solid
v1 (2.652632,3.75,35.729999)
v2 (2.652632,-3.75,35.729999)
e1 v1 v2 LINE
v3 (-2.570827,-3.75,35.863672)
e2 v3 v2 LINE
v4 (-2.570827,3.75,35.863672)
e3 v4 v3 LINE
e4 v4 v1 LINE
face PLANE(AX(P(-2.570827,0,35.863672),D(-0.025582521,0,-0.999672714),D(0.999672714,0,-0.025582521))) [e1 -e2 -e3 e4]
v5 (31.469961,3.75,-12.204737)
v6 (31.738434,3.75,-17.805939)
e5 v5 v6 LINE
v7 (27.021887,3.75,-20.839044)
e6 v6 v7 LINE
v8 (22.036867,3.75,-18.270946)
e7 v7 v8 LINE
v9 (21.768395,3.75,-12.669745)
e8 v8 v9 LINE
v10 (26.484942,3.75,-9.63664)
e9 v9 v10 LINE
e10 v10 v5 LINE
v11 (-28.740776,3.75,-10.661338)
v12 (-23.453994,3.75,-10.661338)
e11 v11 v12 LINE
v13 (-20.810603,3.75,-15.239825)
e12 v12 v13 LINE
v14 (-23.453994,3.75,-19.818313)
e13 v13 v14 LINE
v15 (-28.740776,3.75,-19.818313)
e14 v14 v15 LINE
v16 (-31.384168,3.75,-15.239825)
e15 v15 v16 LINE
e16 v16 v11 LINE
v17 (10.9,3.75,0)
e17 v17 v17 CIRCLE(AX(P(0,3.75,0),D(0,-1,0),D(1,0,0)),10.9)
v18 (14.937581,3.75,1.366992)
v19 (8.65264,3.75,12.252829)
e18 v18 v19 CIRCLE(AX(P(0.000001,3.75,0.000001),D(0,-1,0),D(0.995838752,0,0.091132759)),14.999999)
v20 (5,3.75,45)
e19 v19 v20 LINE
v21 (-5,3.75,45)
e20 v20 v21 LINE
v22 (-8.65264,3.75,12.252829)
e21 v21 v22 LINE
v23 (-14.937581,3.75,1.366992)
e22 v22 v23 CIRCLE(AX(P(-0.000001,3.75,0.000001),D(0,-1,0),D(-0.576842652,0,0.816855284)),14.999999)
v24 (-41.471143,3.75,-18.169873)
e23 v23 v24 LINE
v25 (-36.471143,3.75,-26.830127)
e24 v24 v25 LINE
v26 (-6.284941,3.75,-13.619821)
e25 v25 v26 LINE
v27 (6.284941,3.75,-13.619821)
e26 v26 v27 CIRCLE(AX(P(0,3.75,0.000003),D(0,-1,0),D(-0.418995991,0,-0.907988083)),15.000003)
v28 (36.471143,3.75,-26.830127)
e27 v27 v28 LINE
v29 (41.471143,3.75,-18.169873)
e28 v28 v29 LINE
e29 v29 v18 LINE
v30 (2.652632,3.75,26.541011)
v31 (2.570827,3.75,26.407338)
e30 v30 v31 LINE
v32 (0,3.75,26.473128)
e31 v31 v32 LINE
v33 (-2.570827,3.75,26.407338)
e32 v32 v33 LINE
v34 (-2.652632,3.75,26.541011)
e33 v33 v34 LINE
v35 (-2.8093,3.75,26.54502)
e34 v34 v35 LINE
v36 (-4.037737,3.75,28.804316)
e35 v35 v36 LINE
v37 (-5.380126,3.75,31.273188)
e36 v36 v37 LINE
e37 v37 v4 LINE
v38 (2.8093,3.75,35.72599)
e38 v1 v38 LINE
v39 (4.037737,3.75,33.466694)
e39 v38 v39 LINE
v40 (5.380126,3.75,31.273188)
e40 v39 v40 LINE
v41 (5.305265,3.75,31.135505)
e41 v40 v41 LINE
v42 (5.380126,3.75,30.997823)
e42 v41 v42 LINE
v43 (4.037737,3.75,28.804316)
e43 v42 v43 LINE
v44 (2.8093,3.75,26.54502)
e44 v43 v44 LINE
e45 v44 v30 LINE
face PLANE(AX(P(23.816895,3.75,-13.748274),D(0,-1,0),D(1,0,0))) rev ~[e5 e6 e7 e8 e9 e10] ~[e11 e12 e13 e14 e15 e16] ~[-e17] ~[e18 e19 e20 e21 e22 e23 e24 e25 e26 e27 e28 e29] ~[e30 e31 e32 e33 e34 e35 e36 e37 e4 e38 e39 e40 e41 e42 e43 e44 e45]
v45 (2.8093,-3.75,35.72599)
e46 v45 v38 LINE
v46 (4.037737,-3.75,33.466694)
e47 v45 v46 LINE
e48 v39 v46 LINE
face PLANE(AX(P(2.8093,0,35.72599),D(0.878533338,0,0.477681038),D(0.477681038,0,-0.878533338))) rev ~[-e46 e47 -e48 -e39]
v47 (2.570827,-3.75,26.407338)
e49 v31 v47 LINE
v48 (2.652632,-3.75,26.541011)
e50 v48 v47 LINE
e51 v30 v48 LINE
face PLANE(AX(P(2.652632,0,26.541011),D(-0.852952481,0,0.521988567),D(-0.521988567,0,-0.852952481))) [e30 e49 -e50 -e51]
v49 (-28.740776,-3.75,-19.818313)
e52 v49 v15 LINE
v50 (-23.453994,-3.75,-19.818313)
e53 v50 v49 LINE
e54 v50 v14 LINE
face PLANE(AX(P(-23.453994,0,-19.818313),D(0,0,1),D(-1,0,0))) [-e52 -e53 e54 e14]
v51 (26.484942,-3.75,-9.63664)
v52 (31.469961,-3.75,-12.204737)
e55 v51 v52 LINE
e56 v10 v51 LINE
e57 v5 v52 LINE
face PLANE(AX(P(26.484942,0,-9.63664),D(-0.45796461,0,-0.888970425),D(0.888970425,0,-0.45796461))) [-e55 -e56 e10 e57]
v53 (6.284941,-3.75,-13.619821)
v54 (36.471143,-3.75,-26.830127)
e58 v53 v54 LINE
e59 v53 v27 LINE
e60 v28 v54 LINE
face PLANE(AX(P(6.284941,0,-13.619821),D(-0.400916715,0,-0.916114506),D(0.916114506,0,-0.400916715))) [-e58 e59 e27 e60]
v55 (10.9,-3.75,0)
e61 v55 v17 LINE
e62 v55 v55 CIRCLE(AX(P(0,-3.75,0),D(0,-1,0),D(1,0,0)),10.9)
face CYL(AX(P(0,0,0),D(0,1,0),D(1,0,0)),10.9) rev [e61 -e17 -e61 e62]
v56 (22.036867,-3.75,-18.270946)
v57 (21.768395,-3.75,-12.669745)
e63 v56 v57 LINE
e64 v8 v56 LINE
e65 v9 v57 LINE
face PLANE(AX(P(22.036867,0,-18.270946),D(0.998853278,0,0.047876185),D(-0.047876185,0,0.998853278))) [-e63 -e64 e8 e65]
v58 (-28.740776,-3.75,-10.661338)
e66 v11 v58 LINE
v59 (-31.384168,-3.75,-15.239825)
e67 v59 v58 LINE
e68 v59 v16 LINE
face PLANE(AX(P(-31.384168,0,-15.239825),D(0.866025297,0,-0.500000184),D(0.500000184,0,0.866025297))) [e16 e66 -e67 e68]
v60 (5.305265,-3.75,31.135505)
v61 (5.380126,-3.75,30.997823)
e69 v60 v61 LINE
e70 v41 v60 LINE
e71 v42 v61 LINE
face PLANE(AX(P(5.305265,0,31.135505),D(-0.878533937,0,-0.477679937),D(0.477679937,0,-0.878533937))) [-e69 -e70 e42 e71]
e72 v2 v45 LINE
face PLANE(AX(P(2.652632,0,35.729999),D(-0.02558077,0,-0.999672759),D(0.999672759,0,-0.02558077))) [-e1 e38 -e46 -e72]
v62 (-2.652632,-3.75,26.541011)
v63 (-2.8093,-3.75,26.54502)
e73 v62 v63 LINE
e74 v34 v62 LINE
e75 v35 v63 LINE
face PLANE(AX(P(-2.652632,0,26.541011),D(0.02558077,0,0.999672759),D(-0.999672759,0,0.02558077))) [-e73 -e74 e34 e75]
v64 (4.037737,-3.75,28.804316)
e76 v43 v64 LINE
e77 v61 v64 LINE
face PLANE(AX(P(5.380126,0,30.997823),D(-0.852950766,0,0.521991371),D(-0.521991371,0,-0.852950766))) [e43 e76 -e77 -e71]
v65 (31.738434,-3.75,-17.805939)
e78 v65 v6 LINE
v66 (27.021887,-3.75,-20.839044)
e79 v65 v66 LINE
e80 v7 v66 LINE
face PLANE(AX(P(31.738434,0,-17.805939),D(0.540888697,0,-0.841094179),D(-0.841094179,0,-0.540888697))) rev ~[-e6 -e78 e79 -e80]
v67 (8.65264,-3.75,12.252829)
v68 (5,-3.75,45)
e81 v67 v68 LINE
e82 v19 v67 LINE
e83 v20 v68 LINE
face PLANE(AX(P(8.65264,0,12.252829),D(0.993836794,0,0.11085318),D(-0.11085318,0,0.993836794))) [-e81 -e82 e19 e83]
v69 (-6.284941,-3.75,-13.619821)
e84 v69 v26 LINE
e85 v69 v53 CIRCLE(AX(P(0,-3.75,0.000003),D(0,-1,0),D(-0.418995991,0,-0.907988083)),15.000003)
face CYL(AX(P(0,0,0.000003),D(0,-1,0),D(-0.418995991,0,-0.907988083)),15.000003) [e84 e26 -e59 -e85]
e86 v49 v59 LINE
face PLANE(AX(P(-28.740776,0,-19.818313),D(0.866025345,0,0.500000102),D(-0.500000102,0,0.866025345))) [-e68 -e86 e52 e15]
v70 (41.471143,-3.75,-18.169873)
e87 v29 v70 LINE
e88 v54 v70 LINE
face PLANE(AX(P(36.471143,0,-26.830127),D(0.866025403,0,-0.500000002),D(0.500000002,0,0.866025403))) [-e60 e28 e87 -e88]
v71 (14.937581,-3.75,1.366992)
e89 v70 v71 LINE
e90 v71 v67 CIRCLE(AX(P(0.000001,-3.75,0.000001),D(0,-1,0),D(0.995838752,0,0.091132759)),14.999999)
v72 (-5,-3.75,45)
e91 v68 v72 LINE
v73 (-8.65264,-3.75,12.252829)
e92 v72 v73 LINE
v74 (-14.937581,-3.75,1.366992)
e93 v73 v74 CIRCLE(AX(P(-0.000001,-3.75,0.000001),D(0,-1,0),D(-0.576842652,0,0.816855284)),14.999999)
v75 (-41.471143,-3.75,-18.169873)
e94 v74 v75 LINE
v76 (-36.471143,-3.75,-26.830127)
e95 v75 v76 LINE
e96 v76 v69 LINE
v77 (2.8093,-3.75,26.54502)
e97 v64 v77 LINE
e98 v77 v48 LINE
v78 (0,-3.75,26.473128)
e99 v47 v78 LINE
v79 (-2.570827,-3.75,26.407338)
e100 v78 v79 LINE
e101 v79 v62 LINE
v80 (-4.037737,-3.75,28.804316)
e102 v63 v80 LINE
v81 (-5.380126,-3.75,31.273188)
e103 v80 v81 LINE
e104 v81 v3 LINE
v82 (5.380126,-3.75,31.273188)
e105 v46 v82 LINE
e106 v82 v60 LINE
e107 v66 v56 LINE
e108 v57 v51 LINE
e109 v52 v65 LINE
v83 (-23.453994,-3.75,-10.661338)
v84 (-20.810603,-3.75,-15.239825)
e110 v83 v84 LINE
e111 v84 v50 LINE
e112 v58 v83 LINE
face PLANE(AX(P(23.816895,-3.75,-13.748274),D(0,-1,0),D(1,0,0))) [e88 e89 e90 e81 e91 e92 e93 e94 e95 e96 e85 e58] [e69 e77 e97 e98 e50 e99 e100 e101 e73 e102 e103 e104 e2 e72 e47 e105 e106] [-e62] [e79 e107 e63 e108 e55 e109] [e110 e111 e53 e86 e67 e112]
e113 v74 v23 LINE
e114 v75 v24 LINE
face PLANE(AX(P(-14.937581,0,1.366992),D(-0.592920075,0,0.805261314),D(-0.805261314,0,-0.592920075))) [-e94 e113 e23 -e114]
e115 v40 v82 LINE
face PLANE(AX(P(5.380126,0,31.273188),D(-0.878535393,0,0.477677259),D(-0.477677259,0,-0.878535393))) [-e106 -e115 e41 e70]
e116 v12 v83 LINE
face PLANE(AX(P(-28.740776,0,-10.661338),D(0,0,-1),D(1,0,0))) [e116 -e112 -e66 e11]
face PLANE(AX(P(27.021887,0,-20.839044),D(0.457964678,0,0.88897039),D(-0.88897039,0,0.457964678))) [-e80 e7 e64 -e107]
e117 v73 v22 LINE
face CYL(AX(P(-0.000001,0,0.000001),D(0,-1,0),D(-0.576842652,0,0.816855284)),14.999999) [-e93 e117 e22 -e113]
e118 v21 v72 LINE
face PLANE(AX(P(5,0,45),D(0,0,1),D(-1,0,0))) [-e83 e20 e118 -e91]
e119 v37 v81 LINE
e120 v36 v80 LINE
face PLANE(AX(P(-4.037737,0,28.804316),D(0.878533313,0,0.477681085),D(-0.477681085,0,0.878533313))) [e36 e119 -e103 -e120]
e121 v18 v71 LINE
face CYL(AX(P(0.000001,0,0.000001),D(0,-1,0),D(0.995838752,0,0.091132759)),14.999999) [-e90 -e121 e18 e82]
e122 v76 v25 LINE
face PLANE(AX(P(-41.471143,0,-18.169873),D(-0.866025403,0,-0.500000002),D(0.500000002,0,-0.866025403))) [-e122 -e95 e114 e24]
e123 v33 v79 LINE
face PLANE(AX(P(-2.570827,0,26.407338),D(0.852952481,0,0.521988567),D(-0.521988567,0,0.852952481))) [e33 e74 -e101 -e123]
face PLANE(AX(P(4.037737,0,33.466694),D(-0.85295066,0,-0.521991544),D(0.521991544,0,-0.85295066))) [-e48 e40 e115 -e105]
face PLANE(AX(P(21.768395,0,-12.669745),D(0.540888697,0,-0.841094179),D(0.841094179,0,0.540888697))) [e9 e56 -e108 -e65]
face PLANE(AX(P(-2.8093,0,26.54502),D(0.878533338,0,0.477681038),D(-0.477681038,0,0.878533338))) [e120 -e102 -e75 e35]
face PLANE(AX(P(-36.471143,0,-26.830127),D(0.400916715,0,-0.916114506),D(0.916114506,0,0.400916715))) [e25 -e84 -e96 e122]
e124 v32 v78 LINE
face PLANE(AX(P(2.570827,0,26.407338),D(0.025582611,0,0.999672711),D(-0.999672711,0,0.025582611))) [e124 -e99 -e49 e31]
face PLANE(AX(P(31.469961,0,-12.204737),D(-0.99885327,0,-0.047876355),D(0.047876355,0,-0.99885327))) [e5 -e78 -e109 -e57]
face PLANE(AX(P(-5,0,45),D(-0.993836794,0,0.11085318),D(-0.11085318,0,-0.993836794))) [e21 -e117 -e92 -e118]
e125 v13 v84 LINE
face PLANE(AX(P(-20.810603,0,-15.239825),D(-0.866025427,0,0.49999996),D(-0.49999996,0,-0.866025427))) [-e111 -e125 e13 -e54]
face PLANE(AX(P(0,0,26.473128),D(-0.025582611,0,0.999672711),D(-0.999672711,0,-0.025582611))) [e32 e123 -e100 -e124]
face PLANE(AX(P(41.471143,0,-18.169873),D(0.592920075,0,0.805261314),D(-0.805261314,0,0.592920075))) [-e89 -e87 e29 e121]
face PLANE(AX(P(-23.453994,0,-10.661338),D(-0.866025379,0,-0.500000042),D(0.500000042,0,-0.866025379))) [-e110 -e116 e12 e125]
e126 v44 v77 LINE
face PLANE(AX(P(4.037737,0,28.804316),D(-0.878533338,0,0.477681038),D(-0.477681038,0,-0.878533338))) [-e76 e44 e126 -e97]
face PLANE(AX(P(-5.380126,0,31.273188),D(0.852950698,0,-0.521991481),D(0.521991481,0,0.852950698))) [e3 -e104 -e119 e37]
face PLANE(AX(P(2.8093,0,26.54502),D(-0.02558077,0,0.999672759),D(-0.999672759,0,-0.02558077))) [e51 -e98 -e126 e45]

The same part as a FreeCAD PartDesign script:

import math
import FreeCAD as App
import Part
import Sketcher

V = App.Vector
Q = App.Units.Quantity


def add_polygon(sketch, points):
    """Adds a closed chain of lines whose ends are joined by coincident constraints."""
    first, n = sketch.GeometryCount, len(points)
    for a, b in zip(points, points[1:] + points[:1]):
        sketch.addGeometry(Part.LineSegment(App.Vector(*a, 0), App.Vector(*b, 0)), False)
    for i in range(n):
        sketch.addConstraint(Sketcher.Constraint("Coincident", first + i, 2, first + (i + 1) % n, 1))

doc = App.newDocument("Part")
body = doc.addObject("PartDesign::Body", "Body")

# Sketch on XZ plane
sketch1 = doc.addObject("Sketcher::SketchObject", "Sketch")
body.addObject(sketch1)
sketch1.AttachmentSupport = (doc.XZ_Plane, [""])
sketch1.MapMode = "FlatFace"
sketch1.addGeometry(Part.LineSegment(V(6.28, -13.62, 0), V(36.47, -26.83, 0)), False)  # 0
sketch1.addGeometry(Part.LineSegment(V(36.47, -26.83, 0), V(41.47, -18.17, 0)), False)  # 1
sketch1.addGeometry(Part.LineSegment(V(41.47, -18.17, 0), V(14.94, 1.37, 0)), False)  # 2
sketch1.addGeometry(Part.ArcOfCircle(Part.Circle(V(0, 0, 0), V(0, 0, 1), 15), math.radians(5), math.radians(55)), False)  # 3
sketch1.addGeometry(Part.LineSegment(V(8.65, 12.25, 0), V(5, 45, 0)), False)  # 4
sketch1.addGeometry(Part.LineSegment(V(5, 45, 0), V(-5, 45, 0)), False)  # 5
sketch1.addGeometry(Part.LineSegment(V(-5, 45, 0), V(-8.65, 12.25, 0)), False)  # 6
sketch1.addGeometry(Part.ArcOfCircle(Part.Circle(V(0, 0, 0), V(0, 0, 1), 15), math.radians(125), math.radians(175)), False)  # 7
sketch1.addGeometry(Part.LineSegment(V(-14.94, 1.37, 0), V(-41.47, -18.17, 0)), False)  # 8
sketch1.addGeometry(Part.LineSegment(V(-41.47, -18.17, 0), V(-36.47, -26.83, 0)), False)  # 9
sketch1.addGeometry(Part.LineSegment(V(-36.47, -26.83, 0), V(-6.28, -13.62, 0)), False)  # 10
sketch1.addGeometry(Part.ArcOfCircle(Part.Circle(V(0, 0, 0), V(0, 0, 1), 15), math.radians(-115), math.radians(-65)), False)  # 11
add_polygon(sketch1, [(-31.38, -15.24), (-28.74, -10.66), (-23.45, -10.66), (-20.81, -15.24), (-23.45, -19.82), (-28.74, -19.82)])  # lines 12-17
sketch1.addGeometry(Part.Circle(V(0, 0, 0), V(0, 0, 1), 10.9), False)  # 18
add_polygon(sketch1, [(31.47, -12.2), (31.74, -17.81), (27.02, -20.84), (22.04, -18.27), (21.77, -12.67), (26.48, -9.64)])  # lines 19-24
add_polygon(sketch1, [(0, 26.47), (-2.57, 26.41), (-2.65, 26.54), (-2.81, 26.55), (-4.04, 28.8), (-5.38, 31.27), (-2.57, 35.86), (2.65, 35.73), (2.81, 35.73), (4.04, 33.47), (5.38, 31.27), (5.31, 31.14), (5.38, 31), (4.04, 28.8), (2.81, 26.55), (2.65, 26.54), (2.57, 26.41)])  # lines 25-41
sketch1.addConstraint(Sketcher.Constraint("Coincident", 0, 2, 1, 1))
sketch1.addConstraint(Sketcher.Constraint("Coincident", 1, 2, 2, 1))
sketch1.addConstraint(Sketcher.Constraint("Coincident", 2, 2, 3, 1))
sketch1.addConstraint(Sketcher.Constraint("Coincident", 3, 2, 4, 1))
sketch1.addConstraint(Sketcher.Constraint("Coincident", 4, 2, 5, 1))
sketch1.addConstraint(Sketcher.Constraint("Coincident", 5, 2, 6, 1))
sketch1.addConstraint(Sketcher.Constraint("Coincident", 6, 2, 7, 1))
sketch1.addConstraint(Sketcher.Constraint("Coincident", 7, 2, 8, 1))
sketch1.addConstraint(Sketcher.Constraint("Coincident", 8, 2, 9, 1))
sketch1.addConstraint(Sketcher.Constraint("Coincident", 9, 2, 10, 1))
sketch1.addConstraint(Sketcher.Constraint("Coincident", 10, 2, 11, 1))
sketch1.addConstraint(Sketcher.Constraint("Coincident", 11, 2, 0, 1))
sketch1.addConstraint(Sketcher.Constraint("Horizontal", 5))
sketch1.addConstraint(Sketcher.Constraint("Horizontal", 13))
sketch1.addConstraint(Sketcher.Constraint("Horizontal", 16))
sketch1.addConstraint(Sketcher.Constraint("Coincident", 3, 3, -1, 1))
sketch1.addConstraint(Sketcher.Constraint("Coincident", 7, 3, -1, 1))
sketch1.addConstraint(Sketcher.Constraint("Coincident", 11, 3, -1, 1))
sketch1.addConstraint(Sketcher.Constraint("Coincident", 18, 3, -1, 1))
sketch1.addConstraint(Sketcher.Constraint("Equal", 3, 7))
sketch1.addConstraint(Sketcher.Constraint("Symmetric", 1, 2, 8, 2, -2))
sketch1.addConstraint(Sketcher.Constraint("Symmetric", 0, 2, 9, 2, -2))
sketch1.addConstraint(Sketcher.Constraint("Symmetric", 29, 2, 34, 2, -2))
sketch1.addConstraint(Sketcher.Constraint("Symmetric", 28, 2, 37, 2, -2))
sketch1.addConstraint(Sketcher.Constraint("Symmetric", 27, 2, 38, 2, -2))
sketch1.addConstraint(Sketcher.Constraint("Symmetric", 26, 2, 39, 2, -2))
sketch1.addConstraint(Sketcher.Constraint("Symmetric", 25, 2, 40, 2, -2))
sketch1.addConstraint(Sketcher.Constraint("PointOnObject", 41, 2, -2))
sketch1.addConstraint(Sketcher.Constraint("Parallel", 1, 12))
sketch1.addConstraint(Sketcher.Constraint("Parallel", 9, 14))
sketch1.addConstraint(Sketcher.Constraint("Parallel", 12, 15))
sketch1.addConstraint(Sketcher.Constraint("Parallel", 14, 17))
sketch1.addConstraint(Sketcher.Constraint("Parallel", 19, 22))
sketch1.addConstraint(Sketcher.Constraint("Parallel", 20, 23))
sketch1.addConstraint(Sketcher.Constraint("Parallel", 21, 24))
sketch1.addConstraint(Sketcher.Constraint("Parallel", 28, 29))
sketch1.addConstraint(Sketcher.Constraint("Parallel", 27, 31))
sketch1.addConstraint(Sketcher.Constraint("Parallel", 31, 32))
sketch1.addConstraint(Sketcher.Constraint("Parallel", 29, 33))
sketch1.addConstraint(Sketcher.Constraint("Parallel", 33, 36))
sketch1.addConstraint(Sketcher.Constraint("Parallel", 30, 37))
sketch1.addConstraint(Sketcher.Constraint("Parallel", 25, 39))
sketch1.addConstraint(Sketcher.Constraint("Horizontal", 3, 2, 6, 2))
sketch1.addConstraint(Sketcher.Constraint("Horizontal", 2, 2, 7, 2))
sketch1.addConstraint(Sketcher.Constraint("Horizontal", 10, 2, 11, 2))
sketch1.addConstraint(Sketcher.Constraint("Horizontal", 14, 2, 17, 2))
sketch1.addConstraint(Sketcher.Constraint("Vertical", 13, 2, 15, 2))
sketch1.addConstraint(Sketcher.Constraint("Vertical", 25, 2, 30, 2))
sketch1.addConstraint(Sketcher.Constraint("Vertical", 34, 2, 36, 2))
sketch1.addConstraint(Sketcher.Constraint("Vertical", 33, 2, 37, 2))
sketch1.addConstraint(Sketcher.Constraint("Vertical", 32, 2, 38, 2))
sketch1.addConstraint(Sketcher.Constraint("Vertical", 31, 2, 39, 2))
sketch1.addConstraint(Sketcher.Constraint("Equal", 0, 2))
sketch1.addConstraint(Sketcher.Constraint("Equal", 2, 4))
sketch1.addConstraint(Sketcher.Constraint("Equal", 4, 6))
sketch1.addConstraint(Sketcher.Constraint("Equal", 19, 20))
sketch1.addConstraint(Sketcher.Constraint("Equal", 20, 21))
sketch1.addConstraint(Sketcher.Constraint("Equal", 21, 22))
sketch1.addConstraint(Sketcher.Constraint("Equal", 26, 27))
sketch1.addConstraint(Sketcher.Constraint("Equal", 25, 28))
sketch1.addConstraint(Sketcher.Constraint("Equal", 33, 34))
sketch1.addConstraint(Sketcher.Constraint("Equal", 32, 35))
sketch1.addConstraint(Sketcher.Constraint("Equal", 35, 36))
sketch1.addConstraint(Sketcher.Constraint("Equal", 34, 37))
sketch1.addConstraint(Sketcher.Constraint("Radius", 3, Q("14.999999 mm")))
sketch1.addConstraint(Sketcher.Constraint("Diameter", 18, Q("21.8 mm")))
sketch1.addConstraint(Sketcher.Constraint("DistanceX", 5, 2, 5, 1, Q("10 mm")))
sketch1.addConstraint(Sketcher.Constraint("Angle", 1, Q("60 deg")))
sketch1.addConstraint(Sketcher.Constraint("Distance", 1, Q("10 mm")))
sketch1.addConstraint(Sketcher.Constraint("DistanceY", -1, 1, 4, 2, Q("45 mm")))
sketch1.addConstraint(Sketcher.Constraint("DistanceY", -1, 1, 31, 2, Q("35.729999 mm")))
sketch1.addConstraint(Sketcher.Constraint("Radius", 11, Q("15.000003 mm")))
sketch1.addConstraint(Sketcher.Constraint("DistanceX", 13, 1, 13, 2, Q("5.286782 mm")))
sketch1.addConstraint(Sketcher.Constraint("DistanceX", 27, 2, -1, 1, Q("2.8093 mm")))
sketch1.addConstraint(Sketcher.Constraint("DistanceY", 20, 2, 21, 2, Q("2.568098 mm")))
sketch1.addConstraint(Sketcher.Constraint("DistanceY", 21, 2, 22, 2, Q("5.601201 mm")))
sketch1.addConstraint(Sketcher.Constraint("DistanceX", 29, 2, 25, 2, Q("2.809299 mm")))
sketch1.addConstraint(Sketcher.Constraint("Distance", 0, Q("32.95025 mm")))
sketch1.addConstraint(Sketcher.Constraint("Distance", 14, Q("5.286782 mm")))
sketch1.addConstraint(Sketcher.Constraint("Distance", 22, Q("5.607631 mm")))
sketch1.addConstraint(Sketcher.Constraint("Distance", 25, Q("2.571669 mm")))
sketch1.addConstraint(Sketcher.Constraint("Distance", 27, Q("0.156719 mm")))
sketch1.addConstraint(Sketcher.Constraint("DistanceX", -1, 1, 2, 2, Q("14.937581 mm")))
sketch1.addConstraint(Sketcher.Constraint("DistanceX", 10, 2, -1, 1, Q("6.284941 mm")))
sketch1.addConstraint(Sketcher.Constraint("DistanceY", 12, 2, -1, 1, Q("10.661338 mm")))
sketch1.addConstraint(Sketcher.Constraint("DistanceY", 19, 2, -1, 1, Q("17.805939 mm")))
sketch1.addConstraint(Sketcher.Constraint("DistanceX", -1, 1, 23, 2, Q("26.484942 mm")))
sketch1.addConstraint(Sketcher.Constraint("DistanceX", 8, 2, 13, 2, Q("18.017149 mm")))
sketch1.addConstraint(Sketcher.Constraint("DistanceY", 20, 2, 1, 2, Q("2.669171 mm")))
pad1 = doc.addObject("PartDesign::Pad", "Pad")
body.addObject(pad1)
pad1.Profile = sketch1
pad1.Length = 7.5
pad1.Midplane = True

doc.recompute()
